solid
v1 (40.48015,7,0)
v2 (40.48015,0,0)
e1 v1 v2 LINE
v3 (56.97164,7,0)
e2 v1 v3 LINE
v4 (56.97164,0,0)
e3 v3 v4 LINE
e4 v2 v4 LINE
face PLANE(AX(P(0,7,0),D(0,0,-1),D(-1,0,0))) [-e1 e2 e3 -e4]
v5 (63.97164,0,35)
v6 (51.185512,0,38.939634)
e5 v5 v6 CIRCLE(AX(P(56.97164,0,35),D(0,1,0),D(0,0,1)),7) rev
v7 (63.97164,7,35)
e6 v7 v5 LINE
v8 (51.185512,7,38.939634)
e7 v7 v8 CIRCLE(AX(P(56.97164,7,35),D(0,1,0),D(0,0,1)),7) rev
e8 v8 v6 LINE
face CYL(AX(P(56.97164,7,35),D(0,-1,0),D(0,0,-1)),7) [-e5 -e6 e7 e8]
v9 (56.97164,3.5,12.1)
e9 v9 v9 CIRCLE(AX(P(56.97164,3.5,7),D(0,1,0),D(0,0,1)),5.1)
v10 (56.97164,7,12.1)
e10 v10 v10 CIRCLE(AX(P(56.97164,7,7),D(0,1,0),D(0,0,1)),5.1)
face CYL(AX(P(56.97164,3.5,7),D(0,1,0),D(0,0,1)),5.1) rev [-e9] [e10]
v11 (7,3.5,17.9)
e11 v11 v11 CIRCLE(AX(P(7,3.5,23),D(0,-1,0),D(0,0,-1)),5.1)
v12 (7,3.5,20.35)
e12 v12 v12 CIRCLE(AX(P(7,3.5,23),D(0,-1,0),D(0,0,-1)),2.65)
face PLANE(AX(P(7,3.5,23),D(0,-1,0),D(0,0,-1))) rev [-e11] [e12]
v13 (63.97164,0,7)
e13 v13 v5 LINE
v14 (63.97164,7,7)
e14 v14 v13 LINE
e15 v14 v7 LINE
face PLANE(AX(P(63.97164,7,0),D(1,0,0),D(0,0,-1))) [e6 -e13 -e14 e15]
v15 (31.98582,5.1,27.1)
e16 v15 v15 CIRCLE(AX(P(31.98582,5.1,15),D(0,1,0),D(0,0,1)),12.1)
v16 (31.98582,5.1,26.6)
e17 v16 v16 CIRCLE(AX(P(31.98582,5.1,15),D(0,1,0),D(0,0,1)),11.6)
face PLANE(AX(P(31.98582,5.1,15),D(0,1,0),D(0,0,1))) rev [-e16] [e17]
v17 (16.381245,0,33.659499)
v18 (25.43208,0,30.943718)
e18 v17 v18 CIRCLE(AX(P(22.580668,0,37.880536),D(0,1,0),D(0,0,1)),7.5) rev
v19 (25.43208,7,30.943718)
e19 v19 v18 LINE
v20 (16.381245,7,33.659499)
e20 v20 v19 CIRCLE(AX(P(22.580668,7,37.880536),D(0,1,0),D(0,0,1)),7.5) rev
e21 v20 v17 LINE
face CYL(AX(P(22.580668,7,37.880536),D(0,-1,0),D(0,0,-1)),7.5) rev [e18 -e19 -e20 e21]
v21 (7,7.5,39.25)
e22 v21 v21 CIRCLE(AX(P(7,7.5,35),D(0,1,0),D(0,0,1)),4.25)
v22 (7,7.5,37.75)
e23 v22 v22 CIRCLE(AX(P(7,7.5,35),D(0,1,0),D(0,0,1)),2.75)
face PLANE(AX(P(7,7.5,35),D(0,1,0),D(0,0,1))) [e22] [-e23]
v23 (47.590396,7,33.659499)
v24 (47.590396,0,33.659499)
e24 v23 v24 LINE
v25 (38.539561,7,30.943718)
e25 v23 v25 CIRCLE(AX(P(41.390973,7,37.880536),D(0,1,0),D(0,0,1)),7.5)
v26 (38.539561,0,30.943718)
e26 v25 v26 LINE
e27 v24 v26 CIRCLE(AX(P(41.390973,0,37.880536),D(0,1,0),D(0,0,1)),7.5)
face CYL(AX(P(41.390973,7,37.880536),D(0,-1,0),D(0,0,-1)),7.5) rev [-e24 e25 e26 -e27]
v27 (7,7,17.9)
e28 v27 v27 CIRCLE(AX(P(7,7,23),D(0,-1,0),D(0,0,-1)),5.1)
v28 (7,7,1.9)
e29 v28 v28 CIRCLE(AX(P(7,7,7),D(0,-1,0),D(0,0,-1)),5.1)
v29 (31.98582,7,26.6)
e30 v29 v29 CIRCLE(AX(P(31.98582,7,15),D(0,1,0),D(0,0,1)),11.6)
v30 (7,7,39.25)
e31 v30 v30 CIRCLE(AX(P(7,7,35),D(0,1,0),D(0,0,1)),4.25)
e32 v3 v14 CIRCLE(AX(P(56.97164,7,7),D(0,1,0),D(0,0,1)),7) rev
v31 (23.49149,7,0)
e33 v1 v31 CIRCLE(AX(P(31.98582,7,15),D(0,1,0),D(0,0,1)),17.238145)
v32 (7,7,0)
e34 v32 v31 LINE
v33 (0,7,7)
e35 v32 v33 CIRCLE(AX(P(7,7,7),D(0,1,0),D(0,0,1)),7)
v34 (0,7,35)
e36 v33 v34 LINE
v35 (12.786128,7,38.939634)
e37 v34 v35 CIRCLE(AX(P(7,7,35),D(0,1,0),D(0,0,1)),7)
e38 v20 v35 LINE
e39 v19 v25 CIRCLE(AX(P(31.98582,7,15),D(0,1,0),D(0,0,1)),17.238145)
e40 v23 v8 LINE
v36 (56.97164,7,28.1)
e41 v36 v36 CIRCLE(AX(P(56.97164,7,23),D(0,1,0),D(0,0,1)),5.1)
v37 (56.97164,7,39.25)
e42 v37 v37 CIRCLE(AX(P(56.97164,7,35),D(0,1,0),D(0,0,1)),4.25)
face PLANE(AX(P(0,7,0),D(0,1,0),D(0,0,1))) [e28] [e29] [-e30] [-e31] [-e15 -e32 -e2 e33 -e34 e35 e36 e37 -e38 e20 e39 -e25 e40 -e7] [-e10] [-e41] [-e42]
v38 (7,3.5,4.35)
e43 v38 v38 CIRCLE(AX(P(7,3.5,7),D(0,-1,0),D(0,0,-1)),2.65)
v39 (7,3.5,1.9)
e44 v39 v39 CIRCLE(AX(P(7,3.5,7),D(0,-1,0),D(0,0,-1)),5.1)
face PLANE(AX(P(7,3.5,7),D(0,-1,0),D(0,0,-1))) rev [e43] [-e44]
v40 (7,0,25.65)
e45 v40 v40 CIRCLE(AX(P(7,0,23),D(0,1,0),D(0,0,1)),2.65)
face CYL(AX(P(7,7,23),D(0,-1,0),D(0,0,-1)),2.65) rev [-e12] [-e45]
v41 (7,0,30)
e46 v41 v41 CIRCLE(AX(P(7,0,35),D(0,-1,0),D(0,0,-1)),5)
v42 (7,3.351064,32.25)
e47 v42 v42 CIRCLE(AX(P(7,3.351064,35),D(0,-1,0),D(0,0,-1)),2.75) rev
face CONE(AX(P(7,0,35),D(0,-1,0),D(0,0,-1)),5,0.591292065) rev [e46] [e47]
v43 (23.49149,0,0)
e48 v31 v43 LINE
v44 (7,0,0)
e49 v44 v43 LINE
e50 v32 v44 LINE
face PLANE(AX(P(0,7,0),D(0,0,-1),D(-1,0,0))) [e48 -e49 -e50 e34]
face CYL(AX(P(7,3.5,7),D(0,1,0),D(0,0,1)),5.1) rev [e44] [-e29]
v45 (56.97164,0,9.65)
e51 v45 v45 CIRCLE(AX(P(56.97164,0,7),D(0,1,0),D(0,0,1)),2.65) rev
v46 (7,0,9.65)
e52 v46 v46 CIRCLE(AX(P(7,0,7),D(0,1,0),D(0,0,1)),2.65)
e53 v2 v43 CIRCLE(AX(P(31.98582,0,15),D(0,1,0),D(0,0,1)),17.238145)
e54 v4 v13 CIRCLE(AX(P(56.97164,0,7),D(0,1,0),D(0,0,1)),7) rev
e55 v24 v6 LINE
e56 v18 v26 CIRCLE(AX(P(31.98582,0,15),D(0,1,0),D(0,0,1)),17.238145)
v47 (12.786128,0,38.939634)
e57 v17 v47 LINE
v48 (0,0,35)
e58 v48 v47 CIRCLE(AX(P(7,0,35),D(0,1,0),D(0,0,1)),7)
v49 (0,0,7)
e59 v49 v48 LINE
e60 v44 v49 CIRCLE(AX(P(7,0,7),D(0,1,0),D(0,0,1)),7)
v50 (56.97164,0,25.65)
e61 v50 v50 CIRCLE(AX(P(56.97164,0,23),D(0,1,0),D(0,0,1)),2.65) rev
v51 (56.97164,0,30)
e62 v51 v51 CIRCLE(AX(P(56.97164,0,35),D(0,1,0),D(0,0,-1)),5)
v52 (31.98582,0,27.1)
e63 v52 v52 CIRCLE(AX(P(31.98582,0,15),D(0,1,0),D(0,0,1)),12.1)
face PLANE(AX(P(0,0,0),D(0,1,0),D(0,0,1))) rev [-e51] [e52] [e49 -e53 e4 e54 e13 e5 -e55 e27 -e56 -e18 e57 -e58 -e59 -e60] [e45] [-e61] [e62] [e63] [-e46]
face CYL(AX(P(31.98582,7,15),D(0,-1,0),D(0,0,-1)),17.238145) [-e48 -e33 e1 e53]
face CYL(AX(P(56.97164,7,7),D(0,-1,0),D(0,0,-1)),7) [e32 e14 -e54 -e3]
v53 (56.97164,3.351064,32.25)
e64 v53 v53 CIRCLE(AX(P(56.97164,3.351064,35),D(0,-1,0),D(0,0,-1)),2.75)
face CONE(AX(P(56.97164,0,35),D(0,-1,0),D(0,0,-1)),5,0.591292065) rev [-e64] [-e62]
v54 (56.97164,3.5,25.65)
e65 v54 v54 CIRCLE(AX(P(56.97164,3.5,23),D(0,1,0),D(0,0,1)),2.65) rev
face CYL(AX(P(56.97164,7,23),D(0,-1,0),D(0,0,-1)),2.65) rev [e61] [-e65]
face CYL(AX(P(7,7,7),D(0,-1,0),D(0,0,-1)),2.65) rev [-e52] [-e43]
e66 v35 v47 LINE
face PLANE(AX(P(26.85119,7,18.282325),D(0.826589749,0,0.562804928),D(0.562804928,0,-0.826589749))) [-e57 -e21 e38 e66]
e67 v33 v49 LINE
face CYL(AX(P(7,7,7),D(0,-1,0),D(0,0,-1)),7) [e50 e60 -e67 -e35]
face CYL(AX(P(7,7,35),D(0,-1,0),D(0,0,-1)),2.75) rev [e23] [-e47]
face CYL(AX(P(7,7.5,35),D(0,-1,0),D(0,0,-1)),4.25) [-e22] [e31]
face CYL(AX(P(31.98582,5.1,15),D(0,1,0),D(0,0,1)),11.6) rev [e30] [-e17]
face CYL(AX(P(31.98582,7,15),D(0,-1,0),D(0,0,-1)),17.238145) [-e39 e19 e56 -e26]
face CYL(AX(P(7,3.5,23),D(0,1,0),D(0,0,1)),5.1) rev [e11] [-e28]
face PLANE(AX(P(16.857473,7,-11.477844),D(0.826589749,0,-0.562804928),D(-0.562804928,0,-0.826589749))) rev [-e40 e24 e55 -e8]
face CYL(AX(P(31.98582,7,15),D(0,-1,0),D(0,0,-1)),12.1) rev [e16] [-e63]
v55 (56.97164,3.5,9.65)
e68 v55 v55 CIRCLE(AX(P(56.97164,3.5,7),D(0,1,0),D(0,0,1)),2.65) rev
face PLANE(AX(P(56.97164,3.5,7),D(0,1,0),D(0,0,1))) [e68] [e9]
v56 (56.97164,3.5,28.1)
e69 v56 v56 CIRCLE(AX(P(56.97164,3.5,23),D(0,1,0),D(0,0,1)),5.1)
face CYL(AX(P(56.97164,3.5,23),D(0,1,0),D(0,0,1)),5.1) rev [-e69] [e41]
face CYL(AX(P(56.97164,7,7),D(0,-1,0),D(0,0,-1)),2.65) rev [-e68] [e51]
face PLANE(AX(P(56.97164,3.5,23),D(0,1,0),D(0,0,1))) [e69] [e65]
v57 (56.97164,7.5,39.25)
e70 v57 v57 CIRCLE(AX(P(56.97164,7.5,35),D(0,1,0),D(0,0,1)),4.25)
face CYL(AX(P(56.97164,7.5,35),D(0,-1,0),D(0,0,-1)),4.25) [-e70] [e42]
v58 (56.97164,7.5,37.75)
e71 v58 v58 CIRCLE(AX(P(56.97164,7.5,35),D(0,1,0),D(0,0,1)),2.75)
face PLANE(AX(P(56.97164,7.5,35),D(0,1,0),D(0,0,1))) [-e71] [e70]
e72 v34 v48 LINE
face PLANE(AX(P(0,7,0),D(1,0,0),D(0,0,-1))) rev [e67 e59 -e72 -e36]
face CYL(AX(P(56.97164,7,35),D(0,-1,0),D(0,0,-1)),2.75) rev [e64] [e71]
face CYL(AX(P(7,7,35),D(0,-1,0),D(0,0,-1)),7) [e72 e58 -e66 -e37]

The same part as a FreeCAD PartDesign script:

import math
import FreeCAD as App
import Part
import Sketcher
Q = App.Units.Quantity


def add_polygon(sketch, points):
    """Adds a closed chain of lines whose ends are joined by coincident constraints."""
    first, n = sketch.GeometryCount, len(points)
    for a, b in zip(points, points[1:] + points[:1]):
        sketch.addGeometry(Part.LineSegment(App.Vector(*a, 0), App.Vector(*b, 0)), False)
    for i in range(n):
        sketch.addConstraint(Sketcher.Constraint("Coincident", first + i, 2, first + (i + 1) % n, 1))

doc = App.newDocument("Part")
body = doc.addObject("PartDesign::Body", "Body")

# Sketch on XZ plane
sketch1 = body.newObject("Sketcher::SketchObject", "Sketch")
sketch1.AttachmentSupport = (doc.getObject("XZ_Plane"), [""])
sketch1.MapMode = "FlatFace"
sketch1.addGeometry([
    Part.LineSegment(App.Vector(57, 0, 0), App.Vector(40.5, 0, 0)),  # 0
    Part.ArcOfCircle(Part.Circle(App.Vector(32, 15, 0), App.Vector(0, 0, 1), 17.2), math.radians(-120), math.radians(-60)),  # 1
    Part.LineSegment(App.Vector(23.5, 0, 0), App.Vector(7, 0, 0)),  # 2
    Part.ArcOfCircle(Part.Circle(App.Vector(7, 7, 0), App.Vector(0, 0, 1), 7), math.radians(-180), math.radians(-90)),  # 3
    Part.LineSegment(App.Vector(0, 7, 0), App.Vector(0, 35, 0)),  # 4
    Part.ArcOfCircle(Part.Circle(App.Vector(7, 35, 0), App.Vector(0, 0, 1), 7), math.radians(34), math.radians(180)),  # 5
    Part.LineSegment(App.Vector(12.8, 38.9, 0), App.Vector(16.4, 33.7, 0)),  # 6
    Part.ArcOfCircle(Part.Circle(App.Vector(22.6, 37.9, 0), App.Vector(0, 0, 1), 7.5), math.radians(-146), math.radians(-68)),  # 7
    Part.ArcOfCircle(Part.Circle(App.Vector(32, 15, 0), App.Vector(0, 0, 1), 17.2), math.radians(68), math.radians(112)),  # 8
    Part.ArcOfCircle(Part.Circle(App.Vector(41.4, 37.9, 0), App.Vector(0, 0, 1), 7.5), math.radians(-112), math.radians(-34)),  # 9
    Part.LineSegment(App.Vector(47.6, 33.7, 0), App.Vector(51.2, 38.9, 0)),  # 10
    Part.ArcOfCircle(Part.Circle(App.Vector(57, 35, 0), App.Vector(0, 0, 1), 7), math.radians(0), math.radians(146)),  # 11
    Part.LineSegment(App.Vector(64, 35, 0), App.Vector(64, 7, 0)),  # 12
    Part.ArcOfCircle(Part.Circle(App.Vector(57, 7, 0), App.Vector(0, 0, 1), 7), math.radians(-90), math.radians(0)),  # 13
    Part.Circle(App.Vector(57, 35, 0), App.Vector(0, 0, 1), 2.8),  # 14
    Part.Circle(App.Vector(57, 23, 0), App.Vector(0, 0, 1), 2.6),  # 15
    Part.Circle(App.Vector(7, 35, 0), App.Vector(0, 0, 1), 2.8),  # 16
    Part.Circle(App.Vector(7, 23, 0), App.Vector(0, 0, 1), 2.6),  # 17
    Part.Circle(App.Vector(57, 7, 0), App.Vector(0, 0, 1), 2.6),  # 18
    Part.Circle(App.Vector(32, 15, 0), App.Vector(0, 0, 1), 12.1),  # 19
    Part.Circle(App.Vector(7, 7, 0), App.Vector(0, 0, 1), 2.6),  # 20
], False)
sketch1.addConstraint([
    Sketcher.Constraint("Coincident", 0, 2, 1, 2),
    Sketcher.Constraint("Coincident", 1, 1, 2, 1),
    Sketcher.Constraint("Tangent", 2, 2, 3, 2),
    Sketcher.Constraint("Tangent", 3, 1, 4, 1),
    Sketcher.Constraint("Tangent", 4, 2, 5, 2),
    Sketcher.Constraint("Tangent", 5, 1, 6, 1),
    Sketcher.Constraint("Tangent", 6, 2, 7, 1),
    Sketcher.Constraint("Tangent", 7, 2, 8, 2),
    Sketcher.Constraint("Tangent", 8, 1, 9, 1),
    Sketcher.Constraint("Tangent", 9, 2, 10, 1),
    Sketcher.Constraint("Tangent", 10, 2, 11, 2),
    Sketcher.Constraint("Tangent", 11, 1, 12, 1),
    Sketcher.Constraint("Tangent", 12, 2, 13, 2),
    Sketcher.Constraint("Tangent", 13, 1, 0, 1),
    Sketcher.Constraint("Horizontal", 0),
    Sketcher.Constraint("Horizontal", 2),
    Sketcher.Constraint("Vertical", 4),
    Sketcher.Constraint("Vertical", 12),
    Sketcher.Constraint("Coincident", 8, 3, 1, 3),
    Sketcher.Constraint("Coincident", 14, 3, 11, 3),
    Sketcher.Constraint("Coincident", 16, 3, 5, 3),
    Sketcher.Constraint("Coincident", 18, 3, 13, 3),
    Sketcher.Constraint("Coincident", 19, 3, 1, 3),
    Sketcher.Constraint("Coincident", 20, 3, 3, 3),
    Sketcher.Constraint("Equal", 3, 5),
    Sketcher.Constraint("Equal", 1, 8),
    Sketcher.Constraint("Equal", 7, 9),
    Sketcher.Constraint("Equal", 5, 11),
    Sketcher.Constraint("Equal", 11, 13),
    Sketcher.Constraint("Equal", 14, 16),
    Sketcher.Constraint("Equal", 15, 17),
    Sketcher.Constraint("Equal", 17, 18),
    Sketcher.Constraint("Equal", 18, 20),
    Sketcher.Constraint("PointOnObject", 0, 2, -1),
    Sketcher.Constraint("PointOnObject", 1, 1, -1),
    Sketcher.Constraint("PointOnObject", 3, 1, -2),
    Sketcher.Constraint("Horizontal", 7, 3, 9, 3),
    Sketcher.Constraint("Horizontal", 5, 3, 11, 3),
    Sketcher.Constraint("Horizontal", 15, 3, 17, 3),
    Sketcher.Constraint("Horizontal", 6, 2, 9, 2),
    Sketcher.Constraint("Vertical", 14, 3, 15, 3),
    Sketcher.Constraint("Vertical", 16, 3, 17, 3),
    Sketcher.Constraint("Radius", 3, 7.0),
    Sketcher.Constraint("Diameter", 14, 5.5),
    Sketcher.Constraint("Diameter", 15, 5.3),
    Sketcher.Constraint("Diameter", 19, 24.2),
    Sketcher.Constraint("Radius", 7, 7.5),
    Sketcher.Constraint("DistanceY", 4, 1, 4, 2, 28.0),
    Sketcher.Constraint("DistanceY", -1, 1, 1, 3, 15.0),
    Sketcher.Constraint("DistanceY", -1, 1, 15, 3, 23.0),
    Sketcher.Constraint("Angle", 6, Q("-55.75 deg")),
    Sketcher.Constraint("Radius", 1, 17.238145),
    Sketcher.Constraint("DistanceX", 0, 2, 0, 1, 16.49149),
])
pad1 = body.newObject("PartDesign::Pad", "Pad")
pad1.Profile = sketch1
pad1.Length = 7
pad1.Reversed = True

# Sketch on XZ plane
sketch2 = body.newObject("Sketcher::SketchObject", "Sketch001")
sketch2.AttachmentSupport = (doc.getObject("XZ_Plane"), [""])
sketch2.MapMode = "FlatFace"
sketch2.AttachmentOffset = App.Placement(App.Vector(0, 0, -7), App.Rotation())
sketch2.addGeometry([
    Part.Circle(App.Vector(32, 15, 0), App.Vector(0, 0, 1), 12),
    Part.Circle(App.Vector(32, 15, 0), App.Vector(0, 0, 1), 12),
], False)
sketch2.addConstraint([
    Sketcher.Constraint("Coincident", 1, 3, 0, 3),
    Sketcher.Constraint("Diameter", 0, 24.2),
    Sketcher.Constraint("Diameter", 1, 23.2),
    Sketcher.Constraint("DistanceY", -1, 1, 0, 3, 15.0),
    Sketcher.Constraint("DistanceX", -1, 1, 0, 3, 31.98582),
])
pad2 = body.newObject("PartDesign::Pad", "Pad001")
pad2.Profile = sketch2
pad2.Length = 1.9

# Sketch on XZ plane
sketch3 = body.newObject("Sketcher::SketchObject", "Sketch002")
sketch3.AttachmentSupport = (doc.getObject("XZ_Plane"), [""])
sketch3.MapMode = "FlatFace"
sketch3.AttachmentOffset = App.Placement(App.Vector(0, 0, -7), App.Rotation())
sketch3.addGeometry([
    Part.Circle(App.Vector(57, 7, 0), App.Vector(0, 0, 1), 5.1),  # 0
    Part.Circle(App.Vector(57, 23, 0), App.Vector(0, 0, 1), 5.1),  # 1
    Part.Circle(App.Vector(7, 23, 0), App.Vector(0, 0, 1), 5.1),  # 2
    Part.Circle(App.Vector(7, 7, 0), App.Vector(0, 0, 1), 5.1),  # 3
    Part.Circle(App.Vector(7, 7, 0), App.Vector(0, 0, 1), 2.6),  # 4
], False)
sketch3.addConstraint([
    Sketcher.Constraint("Coincident", 4, 3, 3, 3),
    Sketcher.Constraint("Equal", 0, 1),
    Sketcher.Constraint("Equal", 1, 2),
    Sketcher.Constraint("Equal", 2, 3),
    Sketcher.Constraint("Horizontal", 1, 3, 2, 3),
    Sketcher.Constraint("Horizontal", 0, 3, 3, 3),
    Sketcher.Constraint("Vertical", 0, 3, 1, 3),
    Sketcher.Constraint("Vertical", 2, 3, 3, 3),
    Sketcher.Constraint("Diameter", 0, 10.2),
    Sketcher.Constraint("Diameter", 4, 5.3),
    Sketcher.Constraint("DistanceY", -1, 1, 0, 3, 7.0),
    Sketcher.Constraint("DistanceY", -1, 1, 1, 3, 23.0),
    Sketcher.Constraint("DistanceX", -1, 1, 2, 3, 7.0),
    Sketcher.Constraint("DistanceX", -1, 1, 0, 3, 56.97164),
])
pocket1 = body.newObject("PartDesign::Pocket", "Pocket")
pocket1.Profile = sketch3
pocket1.Length = 3.5
pocket1.Reversed = True

# Sketch on XZ plane
sketch4 = body.newObject("Sketcher::SketchObject", "Sketch003")
sketch4.AttachmentSupport = (doc.getObject("XZ_Plane"), [""])
sketch4.MapMode = "FlatFace"
sketch4.AttachmentOffset = App.Placement(App.Vector(0, 0, -7), App.Rotation())
sketch4.addGeometry([
    Part.Circle(App.Vector(7, 35, 0), App.Vector(0, 0, 1), 4.2),
    Part.Circle(App.Vector(7, 35, 0), App.Vector(0, 0, 1), 2.8),
    Part.Circle(App.Vector(57, 35, 0), App.Vector(0, 0, 1), 4.2),
    Part.Circle(App.Vector(57, 35, 0), App.Vector(0, 0, 1), 2.8),
], False)
sketch4.addConstraint([
    Sketcher.Constraint("Coincident", 1, 3, 0, 3),
    Sketcher.Constraint("Coincident", 3, 3, 2, 3),
    Sketcher.Constraint("Equal", 0, 2),
    Sketcher.Constraint("Equal", 1, 3),
    Sketcher.Constraint("Horizontal", 1, 3, 2, 3),
    Sketcher.Constraint("Diameter", 0, 8.5),
    Sketcher.Constraint("Diameter", 1, 5.5),
    Sketcher.Constraint("DistanceX", -1, 1, 0, 3, 7.0),
    Sketcher.Constraint("DistanceY", -1, 1, 0, 3, 35.0),
    Sketcher.Constraint("DistanceX", -1, 1, 2, 3, 56.97164),
])
pad3 = body.newObject("PartDesign::Pad", "Pad002")
pad3.Profile = sketch4
pad3.Length = 0.5
pad3.Reversed = True

# Sketch on XY plane
sketch5 = body.newObject("Sketcher::SketchObject", "Sketch004")
sketch5.AttachmentSupport = (doc.getObject("XY_Plane"), [""])
sketch5.MapMode = "FlatFace"
sketch5.AttachmentOffset = App.Placement(App.Vector(0, 0, 35), App.Rotation())
add_polygon(sketch5, [(12, 0), (9.7, 3.5), (7, 3.5), (7, 0)])  # lines 0-3
sketch5.addGeometry(Part.LineSegment(App.Vector(7, 0, 0), App.Vector(7, 3.5, 0)), True)  # axis
sketch5.addConstraint([
    Sketcher.Constraint("Horizontal", 1),
    Sketcher.Constraint("Vertical", 2),
    Sketcher.Constraint("Horizontal", 3),
    Sketcher.Constraint("Vertical", 4),
    Sketcher.Constraint("Coincident", 4, 1, 2, 2),
    Sketcher.Constraint("PointOnObject", 2, 2, -1),
    Sketcher.Constraint("Horizontal", 0, 2, 4, 2),
    Sketcher.Constraint("DistanceX", 3, 1, 3, 2, 5.0),
    Sketcher.Constraint("DistanceY", 2, 2, 2, 1, 3.5),
    Sketcher.Constraint("DistanceX", -1, 1, 1, 2, 7.0),
    Sketcher.Constraint("DistanceX", 1, 2, 1, 1, 2.65),
])
groove = body.newObject("PartDesign::Groove", "Groove")
groove.Profile = sketch5
groove.ReferenceAxis = (sketch5, ["Axis0"])
groove.Angle = 360
doc.recompute()

datumplane = body.newObject("PartDesign::Plane", "DatumPlane")
datumplane.AttachmentSupport = (doc.getObject("YZ_Plane"), [""])
datumplane.MapMode = "FlatFace"
datumplane.AttachmentOffset = App.Placement(App.Vector(0, 0, 31.98582), App.Rotation())
mirrored = body.newObject("PartDesign::Mirrored", "Mirrored")
mirrored.Originals = [groove]
mirrored.MirrorPlane = (datumplane, [""])
body.Tip = mirrored

doc.recompute()
